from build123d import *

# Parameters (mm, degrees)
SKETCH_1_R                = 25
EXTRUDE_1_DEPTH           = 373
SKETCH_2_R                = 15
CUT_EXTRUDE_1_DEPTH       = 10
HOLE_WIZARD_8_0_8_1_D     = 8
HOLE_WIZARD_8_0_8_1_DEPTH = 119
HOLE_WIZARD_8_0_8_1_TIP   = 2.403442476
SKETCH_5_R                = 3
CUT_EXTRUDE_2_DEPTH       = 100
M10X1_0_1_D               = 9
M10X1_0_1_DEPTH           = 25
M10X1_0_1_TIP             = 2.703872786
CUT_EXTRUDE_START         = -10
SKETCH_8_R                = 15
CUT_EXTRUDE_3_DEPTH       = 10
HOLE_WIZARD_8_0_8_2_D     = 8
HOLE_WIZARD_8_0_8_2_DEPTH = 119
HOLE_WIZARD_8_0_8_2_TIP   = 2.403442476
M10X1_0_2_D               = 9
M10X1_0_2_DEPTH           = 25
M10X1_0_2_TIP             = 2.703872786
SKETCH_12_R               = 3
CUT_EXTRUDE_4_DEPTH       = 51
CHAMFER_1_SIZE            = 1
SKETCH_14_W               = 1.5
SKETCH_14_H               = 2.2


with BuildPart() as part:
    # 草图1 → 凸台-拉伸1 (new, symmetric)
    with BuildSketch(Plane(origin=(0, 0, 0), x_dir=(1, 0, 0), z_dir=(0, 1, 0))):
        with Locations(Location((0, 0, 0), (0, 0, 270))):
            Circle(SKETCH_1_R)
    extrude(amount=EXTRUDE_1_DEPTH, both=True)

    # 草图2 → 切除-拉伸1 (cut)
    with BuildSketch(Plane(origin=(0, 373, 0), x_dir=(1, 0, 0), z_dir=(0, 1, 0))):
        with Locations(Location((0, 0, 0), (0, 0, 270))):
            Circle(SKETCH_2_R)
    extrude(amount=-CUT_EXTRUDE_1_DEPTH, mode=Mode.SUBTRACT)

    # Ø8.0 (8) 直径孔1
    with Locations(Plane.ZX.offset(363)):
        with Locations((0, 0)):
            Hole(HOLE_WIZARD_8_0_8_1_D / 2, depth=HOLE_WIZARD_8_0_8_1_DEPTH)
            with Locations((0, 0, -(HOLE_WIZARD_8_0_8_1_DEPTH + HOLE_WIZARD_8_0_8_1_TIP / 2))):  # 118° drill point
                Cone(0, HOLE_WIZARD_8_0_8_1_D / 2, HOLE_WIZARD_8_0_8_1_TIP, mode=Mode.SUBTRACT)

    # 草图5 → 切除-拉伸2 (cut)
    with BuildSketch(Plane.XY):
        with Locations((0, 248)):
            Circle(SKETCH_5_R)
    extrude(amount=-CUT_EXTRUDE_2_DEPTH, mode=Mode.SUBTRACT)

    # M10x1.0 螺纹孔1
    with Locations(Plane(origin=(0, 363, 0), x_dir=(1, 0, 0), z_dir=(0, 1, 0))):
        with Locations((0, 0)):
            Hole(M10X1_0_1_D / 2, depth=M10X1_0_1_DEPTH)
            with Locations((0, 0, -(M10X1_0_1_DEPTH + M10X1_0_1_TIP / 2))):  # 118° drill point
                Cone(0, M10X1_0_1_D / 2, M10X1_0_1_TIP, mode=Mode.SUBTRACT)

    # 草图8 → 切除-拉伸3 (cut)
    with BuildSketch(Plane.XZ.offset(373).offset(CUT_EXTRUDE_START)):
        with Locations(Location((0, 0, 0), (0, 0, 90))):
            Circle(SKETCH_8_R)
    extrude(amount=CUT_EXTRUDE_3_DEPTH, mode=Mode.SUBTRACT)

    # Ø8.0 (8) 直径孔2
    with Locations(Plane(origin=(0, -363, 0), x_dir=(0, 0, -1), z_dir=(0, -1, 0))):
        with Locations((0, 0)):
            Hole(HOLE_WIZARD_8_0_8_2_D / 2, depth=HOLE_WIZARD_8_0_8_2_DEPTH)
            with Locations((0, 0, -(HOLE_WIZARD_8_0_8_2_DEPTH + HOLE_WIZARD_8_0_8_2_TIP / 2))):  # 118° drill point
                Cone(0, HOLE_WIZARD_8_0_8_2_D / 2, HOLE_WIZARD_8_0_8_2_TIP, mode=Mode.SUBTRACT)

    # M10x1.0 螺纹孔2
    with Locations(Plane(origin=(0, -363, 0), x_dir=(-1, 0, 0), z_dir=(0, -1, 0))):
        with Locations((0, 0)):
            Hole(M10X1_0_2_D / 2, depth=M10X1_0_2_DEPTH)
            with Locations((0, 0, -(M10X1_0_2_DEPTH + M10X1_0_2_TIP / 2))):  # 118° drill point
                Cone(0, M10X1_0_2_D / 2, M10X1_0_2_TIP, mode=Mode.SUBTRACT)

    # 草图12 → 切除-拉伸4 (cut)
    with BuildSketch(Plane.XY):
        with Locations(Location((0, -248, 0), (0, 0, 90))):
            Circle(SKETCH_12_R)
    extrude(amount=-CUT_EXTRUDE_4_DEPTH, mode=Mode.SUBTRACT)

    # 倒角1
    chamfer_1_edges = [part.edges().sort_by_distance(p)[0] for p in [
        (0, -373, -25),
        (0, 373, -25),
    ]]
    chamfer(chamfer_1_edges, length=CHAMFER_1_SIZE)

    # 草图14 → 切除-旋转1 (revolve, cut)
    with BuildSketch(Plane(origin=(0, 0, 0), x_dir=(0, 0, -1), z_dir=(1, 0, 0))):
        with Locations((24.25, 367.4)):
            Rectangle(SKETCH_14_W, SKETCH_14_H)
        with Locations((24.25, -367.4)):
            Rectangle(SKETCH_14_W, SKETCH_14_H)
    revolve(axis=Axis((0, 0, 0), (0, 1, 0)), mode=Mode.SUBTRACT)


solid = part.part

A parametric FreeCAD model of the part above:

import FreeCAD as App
import Part
import Sketcher
Q = App.Units.Quantity


def edges_at(feature, points):
    """Names of the edges that pass closest to the given points."""
    edges = feature.Shape.Edges
    near = lambda p: min(range(len(edges)), key=lambda i: edges[i].distToShape(Part.Vertex(*p))[0])
    return sorted({f"Edge{near(p) + 1}" for p in points})

doc = App.newDocument("Part")
params = doc.addObject("Spreadsheet::Sheet", "Params")
for row, (alias, value) in enumerate([
    ("sketch1_diameter", "50 mm"),
    ("pad1_length", "746 mm"),
    ("sketch2_diameter", "30 mm"),
    ("pocket1_length", "10 mm"),
    ("sketch3_diameter", "8 mm"),
    ("hole_diameter", "8 mm"),
    ("hole_depth", "119 mm"),
    ("sketch4_diameter", "6 mm"),
    ("pocket2_length", "100 mm"),
    ("sketch5_diameter", "9 mm"),
    ("hole2_diameter", "9 mm"),
    ("hole2_depth", "25 mm"),
    ("sketch6_diameter", "30 mm"),
    ("pocket3_length", "10 mm"),
    ("sketch7_diameter", "8 mm"),
    ("hole3_diameter", "8 mm"),
    ("hole3_depth", "119 mm"),
    ("sketch8_diameter", "9 mm"),
    ("hole4_diameter", "9 mm"),
    ("hole4_depth", "25 mm"),
    ("sketch9_diameter", "6 mm"),
    ("pocket4_length", "51 mm"),
    ("chamfer_size", "1 mm"),
    ("sketch10_width", "2.2 mm"),
    ("sketch10_height", "1.5 mm"),
    ("groove_angle", "360 deg"),
], start=1):
    params.set(f"A{row}", alias)
    params.set(f"B{row}", "=" + value)
    params.setAlias(f"B{row}", alias)

body = doc.addObject("PartDesign::Body", "Body")

sketch1 = body.newObject("Sketcher::SketchObject", "Sketch")
sketch1.AttachmentSupport = (doc.getObject("XZ_Plane"), [""])
sketch1.MapMode = "FlatFace"
sketch1.addGeometry(Part.Circle(App.Vector(0, 0, 0), App.Vector(0, 0, 1), 25), False)
sketch1.addConstraint(Sketcher.Constraint("Coincident", 0, 3, -1, 1))
sketch1.addConstraint(Sketcher.Constraint("Diameter", 0, Q("50 mm")))
sketch1.setExpression("Constraints[1]", "Params.sketch1_diameter")
pad1 = body.newObject("PartDesign::Pad", "Pad")
pad1.Profile = sketch1
pad1.setExpression("Length", "Params.pad1_length")
pad1.Midplane = True

sketch2 = body.newObject("Sketcher::SketchObject", "Sketch001")
sketch2.AttachmentSupport = (doc.getObject("XZ_Plane"), [""])
sketch2.MapMode = "FlatFace"
sketch2.AttachmentOffset = App.Placement(App.Vector(0, 0, -373), App.Rotation())
sketch2.addGeometry(Part.Circle(App.Vector(0, 0, 0), App.Vector(0, 0, 1), 15), False)
sketch2.addConstraint(Sketcher.Constraint("Coincident", 0, 3, -1, 1))
sketch2.addConstraint(Sketcher.Constraint("Diameter", 0, Q("30 mm")))
sketch2.setExpression("Constraints[1]", "Params.sketch2_diameter")
pocket1 = body.newObject("PartDesign::Pocket", "Pocket")
pocket1.Profile = sketch2
pocket1.setExpression("Length", "Params.pocket1_length")
pocket1.Reversed = True

sketch3 = body.newObject("Sketcher::SketchObject", "Sketch002")
sketch3.AttachmentSupport = (doc.getObject("XZ_Plane"), [""])
sketch3.MapMode = "FlatFace"
sketch3.AttachmentOffset = App.Placement(App.Vector(0, 0, -363), App.Rotation())
sketch3.addGeometry(Part.Circle(App.Vector(0, 0, 0), App.Vector(0, 0, 1), 4), False)
sketch3.addConstraint(Sketcher.Constraint("Coincident", 0, 3, -1, 1))
sketch3.addConstraint(Sketcher.Constraint("Diameter", 0, Q("8 mm")))
sketch3.setExpression("Constraints[1]", "Params.sketch3_diameter")
doc.recompute()
hole = body.newObject("PartDesign::Hole", "Hole")
hole.Profile = sketch3
hole.ThreadType = "None"
hole.setExpression("Diameter", "Params.hole_diameter")
hole.DepthType = "Dimension"
hole.setExpression("Depth", "Params.hole_depth")
hole.DrillPoint = "Angled"
hole.DrillPointAngle = 118
hole.Reversed = True

sketch4 = body.newObject("Sketcher::SketchObject", "Sketch003")
sketch4.AttachmentSupport = (doc.getObject("XY_Plane"), [""])
sketch4.MapMode = "FlatFace"
sketch4.addGeometry(Part.Circle(App.Vector(0, 248, 0), App.Vector(0, 0, 1), 3), False)
sketch4.addConstraint(Sketcher.Constraint("PointOnObject", 0, 3, -2))
sketch4.addConstraint(Sketcher.Constraint("Diameter", 0, Q("6 mm")))
sketch4.addConstraint(Sketcher.Constraint("DistanceY", -1, 1, 0, 3, Q("248 mm")))
sketch4.setExpression("Constraints[1]", "Params.sketch4_diameter")
pocket2 = body.newObject("PartDesign::Pocket", "Pocket001")
pocket2.Profile = sketch4
pocket2.setExpression("Length", "Params.pocket2_length")

sketch5 = body.newObject("Sketcher::SketchObject", "Sketch004")
sketch5.AttachmentSupport = (doc.getObject("XZ_Plane"), [""])
sketch5.MapMode = "FlatFace"
sketch5.AttachmentOffset = App.Placement(App.Vector(0, 0, -363), App.Rotation())
sketch5.addGeometry(Part.Circle(App.Vector(0, 0, 0), App.Vector(0, 0, 1), 4.5), False)
sketch5.addConstraint(Sketcher.Constraint("Coincident", 0, 3, -1, 1))
sketch5.addConstraint(Sketcher.Constraint("Diameter", 0, Q("9 mm")))
sketch5.setExpression("Constraints[1]", "Params.sketch5_diameter")
doc.recompute()
hole2 = body.newObject("PartDesign::Hole", "Hole001")
hole2.Profile = sketch5
hole2.ThreadType = "None"
hole2.setExpression("Diameter", "Params.hole2_diameter")
hole2.DepthType = "Dimension"
hole2.setExpression("Depth", "Params.hole2_depth")
hole2.DrillPoint = "Angled"
hole2.DrillPointAngle = 118
hole2.Reversed = True

sketch6 = body.newObject("Sketcher::SketchObject", "Sketch005")
sketch6.AttachmentSupport = (doc.getObject("XZ_Plane"), [""])
sketch6.MapMode = "FlatFace"
sketch6.AttachmentOffset = App.Placement(App.Vector(0, 0, 363), App.Rotation())
sketch6.addGeometry(Part.Circle(App.Vector(0, 0, 0), App.Vector(0, 0, 1), 15), False)
sketch6.addConstraint(Sketcher.Constraint("Coincident", 0, 3, -1, 1))
sketch6.addConstraint(Sketcher.Constraint("Diameter", 0, Q("30 mm")))
sketch6.setExpression("Constraints[1]", "Params.sketch6_diameter")
pocket3 = body.newObject("PartDesign::Pocket", "Pocket002")
pocket3.Profile = sketch6
pocket3.setExpression("Length", "Params.pocket3_length")
pocket3.Reversed = True

sketch7 = body.newObject("Sketcher::SketchObject", "Sketch006")
sketch7.AttachmentSupport = (doc.getObject("XZ_Plane"), [""])
sketch7.MapMode = "FlatFace"
sketch7.AttachmentOffset = App.Placement(App.Vector(0, 0, 363), App.Rotation())
sketch7.addGeometry(Part.Circle(App.Vector(0, 0, 0), App.Vector(0, 0, 1), 4), False)
sketch7.addConstraint(Sketcher.Constraint("Coincident", 0, 3, -1, 1))
sketch7.addConstraint(Sketcher.Constraint("Diameter", 0, Q("8 mm")))
sketch7.setExpression("Constraints[1]", "Params.sketch7_diameter")
doc.recompute()
hole3 = body.newObject("PartDesign::Hole", "Hole002")
hole3.Profile = sketch7
hole3.ThreadType = "None"
hole3.setExpression("Diameter", "Params.hole3_diameter")
hole3.DepthType = "Dimension"
hole3.setExpression("Depth", "Params.hole3_depth")
hole3.DrillPoint = "Angled"
hole3.DrillPointAngle = 118

sketch8 = body.newObject("Sketcher::SketchObject", "Sketch007")
sketch8.AttachmentSupport = (doc.getObject("XZ_Plane"), [""])
sketch8.MapMode = "FlatFace"
sketch8.AttachmentOffset = App.Placement(App.Vector(0, 0, 363), App.Rotation())
sketch8.addGeometry(Part.Circle(App.Vector(0, 0, 0), App.Vector(0, 0, 1), 4.5), False)
sketch8.addConstraint(Sketcher.Constraint("Coincident", 0, 3, -1, 1))
sketch8.addConstraint(Sketcher.Constraint("Diameter", 0, Q("9 mm")))
sketch8.setExpression("Constraints[1]", "Params.sketch8_diameter")
doc.recompute()
hole4 = body.newObject("PartDesign::Hole", "Hole003")
hole4.Profile = sketch8
hole4.ThreadType = "None"
hole4.setExpression("Diameter", "Params.hole4_diameter")
hole4.DepthType = "Dimension"
hole4.setExpression("Depth", "Params.hole4_depth")
hole4.DrillPoint = "Angled"
hole4.DrillPointAngle = 118

sketch9 = body.newObject("Sketcher::SketchObject", "Sketch008")
sketch9.AttachmentSupport = (doc.getObject("XY_Plane"), [""])
sketch9.MapMode = "FlatFace"
sketch9.addGeometry(Part.Circle(App.Vector(0, -248, 0), App.Vector(0, 0, 1), 3), False)
sketch9.addConstraint(Sketcher.Constraint("PointOnObject", 0, 3, -2))
sketch9.addConstraint(Sketcher.Constraint("Diameter", 0, Q("6 mm")))
sketch9.addConstraint(Sketcher.Constraint("DistanceY", 0, 3, -1, 1, Q("248 mm")))
sketch9.setExpression("Constraints[1]", "Params.sketch9_diameter")
pocket4 = body.newObject("PartDesign::Pocket", "Pocket003")
pocket4.Profile = sketch9
pocket4.setExpression("Length", "Params.pocket4_length")
doc.recompute()

chamfer = body.newObject("PartDesign::Chamfer", "Chamfer")
chamfer.Base = (pocket4, edges_at(pocket4, [(0, -373, -25), (0, 373, -25)]))
chamfer.setExpression("Size", "Params.chamfer_size")

sketch10 = body.newObject("Sketcher::SketchObject", "Sketch009")
sketch10.AttachmentSupport = (doc.getObject("YZ_Plane"), [""])
sketch10.MapMode = "FlatFace"
sketch10.addGeometry(Part.LineSegment(App.Vector(368.5, -23.5, 0), App.Vector(366.3, -23.5, 0)), False)
sketch10.addGeometry(Part.LineSegment(App.Vector(366.3, -23.5, 0), App.Vector(366.3, -25, 0)), False)
sketch10.addGeometry(Part.LineSegment(App.Vector(366.3, -25, 0), App.Vector(368.5, -25, 0)), False)
sketch10.addGeometry(Part.LineSegment(App.Vector(368.5, -25, 0), App.Vector(368.5, -23.5, 0)), False)
sketch10.addGeometry(Part.LineSegment(App.Vector(-366.3, -23.5, 0), App.Vector(-368.5, -23.5, 0)), False)
sketch10.addGeometry(Part.LineSegment(App.Vector(-368.5, -23.5, 0), App.Vector(-368.5, -25, 0)), False)
sketch10.addGeometry(Part.LineSegment(App.Vector(-368.5, -25, 0), App.Vector(-366.3, -25, 0)), False)
sketch10.addGeometry(Part.LineSegment(App.Vector(-366.3, -25, 0), App.Vector(-366.3, -23.5, 0)), False)
sketch10.addConstraint(Sketcher.Constraint("Coincident", 0, 2, 1, 1))
sketch10.addConstraint(Sketcher.Constraint("Coincident", 1, 2, 2, 1))
sketch10.addConstraint(Sketcher.Constraint("Coincident", 2, 2, 3, 1))
sketch10.addConstraint(Sketcher.Constraint("Coincident", 3, 2, 0, 1))
sketch10.addConstraint(Sketcher.Constraint("Coincident", 4, 2, 5, 1))
sketch10.addConstraint(Sketcher.Constraint("Coincident", 5, 2, 6, 1))
sketch10.addConstraint(Sketcher.Constraint("Coincident", 6, 2, 7, 1))
sketch10.addConstraint(Sketcher.Constraint("Coincident", 7, 2, 4, 1))
sketch10.addConstraint(Sketcher.Constraint("Horizontal", 0))
sketch10.addConstraint(Sketcher.Constraint("Vertical", 1))
sketch10.addConstraint(Sketcher.Constraint("Horizontal", 2))
sketch10.addConstraint(Sketcher.Constraint("Vertical", 3))
sketch10.addConstraint(Sketcher.Constraint("Horizontal", 4))
sketch10.addConstraint(Sketcher.Constraint("Vertical", 5))
sketch10.addConstraint(Sketcher.Constraint("Horizontal", 6))
sketch10.addConstraint(Sketcher.Constraint("Vertical", 7))
sketch10.addConstraint(Sketcher.Constraint("Symmetric", 3, 2, 4, 2, -2))
sketch10.addConstraint(Sketcher.Constraint("Symmetric", 1, 2, 6, 2, -2))
sketch10.addConstraint(Sketcher.Constraint("DistanceX", 0, 2, 0, 1, Q("2.2 mm")))
sketch10.addConstraint(Sketcher.Constraint("DistanceY", 1, 2, 1, 1, Q("1.5 mm")))
sketch10.addConstraint(Sketcher.Constraint("DistanceY", 1, 2, -1, 1, Q("25 mm")))
sketch10.addConstraint(Sketcher.Constraint("DistanceX", 4, 2, 3, 2, Q("737 mm")))
sketch10.setExpression("Constraints[18]", "Params.sketch10_width")
sketch10.setExpression("Constraints[19]", "Params.sketch10_height")
groove = body.newObject("PartDesign::Groove", "Groove")
groove.Profile = sketch10
groove.ReferenceAxis = (sketch10, ["H_Axis"])
groove.setExpression("Angle", "Params.groove_angle")

doc.recompute()
